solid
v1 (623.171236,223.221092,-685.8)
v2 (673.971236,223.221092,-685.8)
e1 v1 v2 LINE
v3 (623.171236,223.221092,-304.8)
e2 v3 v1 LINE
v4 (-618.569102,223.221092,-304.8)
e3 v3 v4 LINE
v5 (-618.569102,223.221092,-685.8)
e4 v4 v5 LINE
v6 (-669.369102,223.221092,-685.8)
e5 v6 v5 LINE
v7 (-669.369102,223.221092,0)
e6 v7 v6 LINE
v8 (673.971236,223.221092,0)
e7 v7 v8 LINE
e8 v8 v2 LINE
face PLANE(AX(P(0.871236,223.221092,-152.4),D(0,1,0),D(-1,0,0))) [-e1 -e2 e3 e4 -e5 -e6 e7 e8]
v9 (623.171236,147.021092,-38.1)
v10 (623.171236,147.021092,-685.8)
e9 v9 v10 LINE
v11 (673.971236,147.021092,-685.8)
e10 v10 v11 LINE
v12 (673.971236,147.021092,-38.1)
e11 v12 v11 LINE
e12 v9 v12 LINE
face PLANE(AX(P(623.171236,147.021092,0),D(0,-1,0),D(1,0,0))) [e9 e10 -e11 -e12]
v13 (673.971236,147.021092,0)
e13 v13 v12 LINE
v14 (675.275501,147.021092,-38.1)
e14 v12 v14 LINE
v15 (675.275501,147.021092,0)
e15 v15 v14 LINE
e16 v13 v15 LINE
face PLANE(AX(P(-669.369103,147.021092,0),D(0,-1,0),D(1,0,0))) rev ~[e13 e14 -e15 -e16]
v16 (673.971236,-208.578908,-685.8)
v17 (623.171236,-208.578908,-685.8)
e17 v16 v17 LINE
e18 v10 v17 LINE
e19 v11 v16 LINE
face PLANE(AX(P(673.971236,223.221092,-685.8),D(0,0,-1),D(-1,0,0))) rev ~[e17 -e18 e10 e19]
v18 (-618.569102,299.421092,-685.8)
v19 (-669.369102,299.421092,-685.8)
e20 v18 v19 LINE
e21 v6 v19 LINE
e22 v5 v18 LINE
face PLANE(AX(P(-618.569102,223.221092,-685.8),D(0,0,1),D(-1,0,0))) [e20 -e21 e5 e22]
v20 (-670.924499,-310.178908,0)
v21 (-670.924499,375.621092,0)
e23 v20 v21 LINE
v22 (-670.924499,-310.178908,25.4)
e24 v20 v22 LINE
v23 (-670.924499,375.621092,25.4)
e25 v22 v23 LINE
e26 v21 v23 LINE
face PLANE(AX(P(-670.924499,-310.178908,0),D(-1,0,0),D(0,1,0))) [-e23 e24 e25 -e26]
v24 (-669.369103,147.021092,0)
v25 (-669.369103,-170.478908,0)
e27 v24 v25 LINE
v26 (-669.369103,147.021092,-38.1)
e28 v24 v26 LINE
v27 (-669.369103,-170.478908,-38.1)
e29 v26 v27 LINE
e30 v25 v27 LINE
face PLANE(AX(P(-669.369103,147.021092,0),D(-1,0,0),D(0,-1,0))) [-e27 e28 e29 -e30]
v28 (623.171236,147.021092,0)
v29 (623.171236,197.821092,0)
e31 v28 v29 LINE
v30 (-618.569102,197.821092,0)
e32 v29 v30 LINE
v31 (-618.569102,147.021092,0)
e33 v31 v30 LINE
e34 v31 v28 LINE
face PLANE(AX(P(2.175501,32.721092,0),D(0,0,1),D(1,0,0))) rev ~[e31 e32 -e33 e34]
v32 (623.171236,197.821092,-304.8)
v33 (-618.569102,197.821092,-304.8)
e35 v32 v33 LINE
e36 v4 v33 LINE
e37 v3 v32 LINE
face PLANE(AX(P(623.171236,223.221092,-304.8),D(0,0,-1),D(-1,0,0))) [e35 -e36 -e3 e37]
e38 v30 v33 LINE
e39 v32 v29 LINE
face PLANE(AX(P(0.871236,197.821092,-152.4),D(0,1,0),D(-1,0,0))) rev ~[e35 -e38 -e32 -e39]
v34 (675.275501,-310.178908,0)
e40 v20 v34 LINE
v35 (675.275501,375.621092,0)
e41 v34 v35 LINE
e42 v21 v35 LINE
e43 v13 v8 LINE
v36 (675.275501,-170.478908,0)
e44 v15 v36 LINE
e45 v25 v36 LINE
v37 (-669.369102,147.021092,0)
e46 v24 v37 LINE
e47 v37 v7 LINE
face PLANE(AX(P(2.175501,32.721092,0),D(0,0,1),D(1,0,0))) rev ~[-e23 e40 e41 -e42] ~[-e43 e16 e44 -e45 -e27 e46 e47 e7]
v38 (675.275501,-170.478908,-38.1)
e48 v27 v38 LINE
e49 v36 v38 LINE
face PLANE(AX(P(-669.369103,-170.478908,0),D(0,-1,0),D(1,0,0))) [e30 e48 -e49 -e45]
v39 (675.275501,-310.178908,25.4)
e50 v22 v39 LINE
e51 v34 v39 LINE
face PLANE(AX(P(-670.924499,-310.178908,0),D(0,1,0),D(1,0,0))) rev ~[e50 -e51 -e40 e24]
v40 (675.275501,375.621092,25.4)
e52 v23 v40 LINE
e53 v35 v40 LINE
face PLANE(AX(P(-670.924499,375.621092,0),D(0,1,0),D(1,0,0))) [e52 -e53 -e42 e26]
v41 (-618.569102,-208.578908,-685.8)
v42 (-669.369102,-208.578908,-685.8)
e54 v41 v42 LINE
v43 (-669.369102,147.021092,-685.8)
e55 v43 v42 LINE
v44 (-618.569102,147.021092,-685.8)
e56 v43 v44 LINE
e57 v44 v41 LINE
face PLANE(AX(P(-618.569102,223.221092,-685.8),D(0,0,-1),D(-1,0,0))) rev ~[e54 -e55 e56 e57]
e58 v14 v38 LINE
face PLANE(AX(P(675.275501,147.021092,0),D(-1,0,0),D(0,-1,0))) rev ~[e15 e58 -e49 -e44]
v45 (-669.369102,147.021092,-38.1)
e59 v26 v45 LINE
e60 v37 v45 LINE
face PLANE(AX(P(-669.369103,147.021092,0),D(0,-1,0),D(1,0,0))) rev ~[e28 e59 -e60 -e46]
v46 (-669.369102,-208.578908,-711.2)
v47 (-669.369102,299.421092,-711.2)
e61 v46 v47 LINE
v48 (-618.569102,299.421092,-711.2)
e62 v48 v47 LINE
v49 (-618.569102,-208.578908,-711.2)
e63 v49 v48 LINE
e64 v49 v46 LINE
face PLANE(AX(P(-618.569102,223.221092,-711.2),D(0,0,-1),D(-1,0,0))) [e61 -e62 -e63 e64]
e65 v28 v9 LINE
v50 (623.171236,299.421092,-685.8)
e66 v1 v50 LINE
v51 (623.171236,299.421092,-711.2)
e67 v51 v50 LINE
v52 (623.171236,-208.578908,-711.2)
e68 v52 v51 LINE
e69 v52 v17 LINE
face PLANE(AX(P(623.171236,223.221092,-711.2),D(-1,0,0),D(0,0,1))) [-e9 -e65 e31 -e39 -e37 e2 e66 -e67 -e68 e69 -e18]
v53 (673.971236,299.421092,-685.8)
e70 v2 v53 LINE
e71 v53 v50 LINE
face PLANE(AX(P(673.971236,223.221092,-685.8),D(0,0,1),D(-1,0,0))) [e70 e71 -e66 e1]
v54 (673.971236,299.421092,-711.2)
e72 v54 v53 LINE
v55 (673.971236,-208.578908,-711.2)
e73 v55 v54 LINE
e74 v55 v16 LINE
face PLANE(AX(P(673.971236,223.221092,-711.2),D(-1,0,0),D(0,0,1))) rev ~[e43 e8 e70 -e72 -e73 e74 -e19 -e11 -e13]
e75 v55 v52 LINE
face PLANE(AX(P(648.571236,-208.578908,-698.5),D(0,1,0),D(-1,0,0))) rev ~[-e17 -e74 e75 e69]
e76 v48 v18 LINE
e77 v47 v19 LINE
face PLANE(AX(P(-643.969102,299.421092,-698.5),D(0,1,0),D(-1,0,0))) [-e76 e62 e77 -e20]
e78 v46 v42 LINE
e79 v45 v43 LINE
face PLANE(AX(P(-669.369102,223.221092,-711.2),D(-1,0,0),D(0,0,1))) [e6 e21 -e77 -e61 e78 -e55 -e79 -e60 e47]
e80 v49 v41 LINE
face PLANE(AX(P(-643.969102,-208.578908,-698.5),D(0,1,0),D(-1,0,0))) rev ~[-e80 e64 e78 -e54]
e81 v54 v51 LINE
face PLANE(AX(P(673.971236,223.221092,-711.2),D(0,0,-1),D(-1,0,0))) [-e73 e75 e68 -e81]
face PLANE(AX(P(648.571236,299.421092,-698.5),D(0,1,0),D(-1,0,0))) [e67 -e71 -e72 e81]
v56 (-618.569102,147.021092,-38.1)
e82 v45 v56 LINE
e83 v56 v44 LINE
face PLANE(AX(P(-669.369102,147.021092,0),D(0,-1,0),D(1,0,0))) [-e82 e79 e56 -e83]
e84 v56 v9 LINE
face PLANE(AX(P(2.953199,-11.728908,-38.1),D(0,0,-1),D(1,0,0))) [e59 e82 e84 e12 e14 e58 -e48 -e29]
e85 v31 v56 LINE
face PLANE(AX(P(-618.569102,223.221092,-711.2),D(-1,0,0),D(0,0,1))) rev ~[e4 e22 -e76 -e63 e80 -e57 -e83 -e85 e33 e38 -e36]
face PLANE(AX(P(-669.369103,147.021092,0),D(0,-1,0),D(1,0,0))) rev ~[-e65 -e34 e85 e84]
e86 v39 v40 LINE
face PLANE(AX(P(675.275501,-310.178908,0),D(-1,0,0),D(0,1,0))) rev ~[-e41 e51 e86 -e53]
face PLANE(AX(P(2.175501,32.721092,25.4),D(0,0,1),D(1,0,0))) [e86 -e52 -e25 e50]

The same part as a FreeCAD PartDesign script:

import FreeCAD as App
import Part
import Sketcher

V = App.Vector
Q = App.Units.Quantity


def add_polygon(sketch, points):
    """Adds a closed chain of lines whose ends are joined by coincident constraints."""
    first, n = sketch.GeometryCount, len(points)
    for a, b in zip(points, points[1:] + points[:1]):
        sketch.addGeometry(Part.LineSegment(App.Vector(*a, 0), App.Vector(*b, 0)), False)
    for i in range(n):
        sketch.addConstraint(Sketcher.Constraint("Coincident", first + i, 2, first + (i + 1) % n, 1))

doc = App.newDocument("Part")
params = doc.addObject("Spreadsheet::Sheet", "Params")
for row, (alias, value) in enumerate([
    ("sketch1_width", "53 in"),
    ("sketch1_height", "27 in"),
    ("pad1_length", "1 in"),
    ("sketch2_width", "2 in"),
    ("sketch2_height", "3 in"),
    ("pad2_length", "27 in"),
    ("sketch3_height", "12.5 in"),
    ("pad3_length", "1.5 in"),
    ("sketch4_width", "2 in"),
    ("sketch4_height", "1 in"),
    ("pad4_length", "3 in"),
    ("pad4_length2", "17 in"),
    ("sketch5_width", "2 in"),
    ("sketch5_height", "1 in"),
    ("pad5_length", "3 in"),
    ("pad5_length2", "17 in"),
    ("sketch6_width", "49 in"),
    ("sketch6_height", "12 in"),
    ("pad6_length", "1 in"),
], start=1):
    params.set(f"A{row}", alias)
    params.set(f"B{row}", "=" + value)
    params.setAlias(f"B{row}", alias)

body = doc.addObject("PartDesign::Body", "Body")

# Sketch on XY plane
sketch1 = doc.addObject("Sketcher::SketchObject", "Sketch")
body.addObject(sketch1)
sketch1.AttachmentSupport = (doc.XY_Plane, [""])
sketch1.MapMode = "FlatFace"
add_polygon(sketch1, [(-671, 376), (-671, -310), (675, -310), (675, 376)])  # lines 0-3
sketch1.addConstraint([
    Sketcher.Constraint("Vertical", 0),
    Sketcher.Constraint("Horizontal", 1),
    Sketcher.Constraint("Vertical", 2),
    Sketcher.Constraint("Horizontal", 3),
    Sketcher.Constraint("DistanceX", 1, 1, 1, 2, Q("53 in")),
    Sketcher.Constraint("DistanceY", 0, 2, 0, 1, Q("27 in")),
    Sketcher.Constraint("DistanceX", 0, 2, -1, 1, 670.924499),
    Sketcher.Constraint("DistanceY", 0, 2, -1, 1, 310.178908),
])
sketch1.setExpression("Constraints[8]", "Params.sketch1_width")
sketch1.setExpression("Constraints[9]", "Params.sketch1_height")
pad1 = doc.addObject("PartDesign::Pad", "Pad")
body.addObject(pad1)
pad1.Profile = sketch1
pad1.setExpression("Length", "Params.pad1_length")
body2 = doc.addObject("PartDesign::Body", "Body001")
body2.AllowCompound = True

# Sketch on XY plane
sketch2 = doc.addObject("Sketcher::SketchObject", "Sketch001")
body2.addObject(sketch2)
sketch2.AttachmentSupport = (doc.getObject("XY_Plane001"), [""])
sketch2.MapMode = "FlatFace"
add_polygon(sketch2, [(-669, 223), (-669, 147), (-619, 147), (-619, 223)])  # lines 0-3
add_polygon(sketch2, [(623, 223), (623, 147), (674, 147), (674, 223)])  # lines 4-7
sketch2.addConstraint([
    Sketcher.Constraint("Vertical", 0),
    Sketcher.Constraint("Horizontal", 1),
    Sketcher.Constraint("Vertical", 2),
    Sketcher.Constraint("Horizontal", 3),
    Sketcher.Constraint("Vertical", 4),
    Sketcher.Constraint("Horizontal", 5),
    Sketcher.Constraint("Vertical", 6),
    Sketcher.Constraint("Horizontal", 7),
    Sketcher.Constraint("Horizontal", 1, 2, 4, 2),
    Sketcher.Constraint("Horizontal", 3, 2, 6, 2),
    Sketcher.Constraint("Equal", 3, 5),
    Sketcher.Constraint("DistanceX", 1, 1, 1, 2, Q("2 in")),
    Sketcher.Constraint("DistanceY", 0, 2, 0, 1, Q("3 in")),
    Sketcher.Constraint("DistanceX", 0, 2, -1, 1, 669.369102),
    Sketcher.Constraint("DistanceY", -1, 1, 2, 2, 223.221092),
    Sketcher.Constraint("DistanceX", 1, 2, 4, 2, 1241.740338),
])
sketch2.setExpression("Constraints[19]", "Params.sketch2_width")
sketch2.setExpression("Constraints[20]", "Params.sketch2_height")
pad2 = doc.addObject("PartDesign::Pad", "Pad001")
body2.addObject(pad2)
pad2.Profile = sketch2
pad2.setExpression("Length", "Params.pad2_length")
pad2.Reversed = True
doc.recompute()

boolean = doc.addObject("PartDesign::Boolean", "Boolean")
body.addObject(boolean)
boolean.Type = "Fuse"
boolean.addObjects([body2])

# Sketch on XY plane
sketch3 = doc.addObject("Sketcher::SketchObject", "Sketch002")
body.addObject(sketch3)
sketch3.AttachmentSupport = (doc.XY_Plane, [""])
sketch3.MapMode = "FlatFace"
add_polygon(sketch3, [(-669, -170), (-669, 147), (675, 147), (675, -170)])  # lines 0-3
sketch3.addConstraint([
    Sketcher.Constraint("Vertical", 0),
    Sketcher.Constraint("Horizontal", 1),
    Sketcher.Constraint("Vertical", 2),
    Sketcher.Constraint("Horizontal", 3),
    Sketcher.Constraint("DistanceY", 0, 1, 0, 2, Q("12.5 in")),
    Sketcher.Constraint("DistanceX", -1, 1, 1, 2, 675.275501),
    Sketcher.Constraint("DistanceX", 1, 1, 1, 2, 1344.644603),
    Sketcher.Constraint("DistanceY", -1, 1, 0, 2, 147.021092),
])
sketch3.setExpression("Constraints[8]", "Params.sketch3_height")
pad3 = doc.addObject("PartDesign::Pad", "Pad002")
body.addObject(pad3)
pad3.Profile = sketch3
pad3.setExpression("Length", "Params.pad3_length")
pad3.Reversed = True

# Sketch on XZ plane
sketch4 = doc.addObject("Sketcher::SketchObject", "Sketch003")
body.addObject(sketch4)
sketch4.AttachmentSupport = (doc.XZ_Plane, [""])
sketch4.MapMode = "FlatFace"
sketch4.AttachmentOffset = App.Placement(V(0, 0, -223.221092), App.Rotation())
add_polygon(sketch4, [(674, -686), (674, -711), (623, -711), (623, -686)])  # lines 0-3
sketch4.addConstraint([
    Sketcher.Constraint("Vertical", 0),
    Sketcher.Constraint("Horizontal", 1),
    Sketcher.Constraint("Vertical", 2),
    Sketcher.Constraint("Horizontal", 3),
    Sketcher.Constraint("DistanceX", 1, 2, 1, 1, Q("2 in")),
    Sketcher.Constraint("DistanceY", 0, 2, 0, 1, Q("1 in")),
    Sketcher.Constraint("DistanceY", 0, 2, -1, 1, Q("28 in")),
    Sketcher.Constraint("DistanceX", -1, 1, 0, 2, 673.971236),
])
sketch4.setExpression("Constraints[8]", "Params.sketch4_width")
sketch4.setExpression("Constraints[9]", "Params.sketch4_height")
pad4 = doc.addObject("PartDesign::Pad", "Pad003")
body.addObject(pad4)
pad4.Profile = sketch4
pad4.Type = "TwoLengths"
pad4.setExpression("Length", "Params.pad4_length")
pad4.setExpression("Length2", "Params.pad4_length2")
pad4.Reversed = True

# Sketch on XZ plane
sketch5 = doc.addObject("Sketcher::SketchObject", "Sketch004")
body.addObject(sketch5)
sketch5.AttachmentSupport = (doc.XZ_Plane, [""])
sketch5.MapMode = "FlatFace"
sketch5.AttachmentOffset = App.Placement(V(0, 0, -223.221092), App.Rotation())
add_polygon(sketch5, [(-619, -686), (-619, -711), (-669, -711), (-669, -686)])  # lines 0-3
sketch5.addConstraint([
    Sketcher.Constraint("Vertical", 0),
    Sketcher.Constraint("Horizontal", 1),
    Sketcher.Constraint("Vertical", 2),
    Sketcher.Constraint("Horizontal", 3),
    Sketcher.Constraint("DistanceX", 1, 2, 1, 1, Q("2 in")),
    Sketcher.Constraint("DistanceY", 0, 2, 0, 1, Q("1 in")),
    Sketcher.Constraint("DistanceY", 0, 2, -1, 1, Q("28 in")),
    Sketcher.Constraint("DistanceX", 0, 2, -1, 1, 618.569102),
])
sketch5.setExpression("Constraints[8]", "Params.sketch5_width")
sketch5.setExpression("Constraints[9]", "Params.sketch5_height")
pad5 = doc.addObject("PartDesign::Pad", "Pad004")
body.addObject(pad5)
pad5.Profile = sketch5
pad5.Type = "TwoLengths"
pad5.setExpression("Length", "Params.pad5_length")
pad5.setExpression("Length2", "Params.pad5_length2")
pad5.Reversed = True

# Sketch on XZ plane
sketch6 = doc.addObject("Sketcher::SketchObject", "Sketch005")
body.addObject(sketch6)
sketch6.AttachmentSupport = (doc.XZ_Plane, [""])
sketch6.MapMode = "FlatFace"
sketch6.AttachmentOffset = App.Placement(V(0, 0, -223.221092), App.Rotation())
add_polygon(sketch6, [(623, 0), (623, -305), (-621, -305), (-621, 0)])  # lines 0-3
sketch6.addConstraint([
    Sketcher.Constraint("Vertical", 0),
    Sketcher.Constraint("Horizontal", 1),
    Sketcher.Constraint("Vertical", 2),
    Sketcher.Constraint("Horizontal", 3),
    Sketcher.Constraint("PointOnObject", 2, 2, -1),
    Sketcher.Constraint("DistanceX", 1, 2, 1, 1, Q("49 in")),
    Sketcher.Constraint("DistanceY", 0, 2, 0, 1, Q("12 in")),
    Sketcher.Constraint("DistanceX", -1, 1, 0, 2, 623.171236),
])
sketch6.setExpression("Constraints[9]", "Params.sketch6_width")
sketch6.setExpression("Constraints[10]", "Params.sketch6_height")
pad6 = doc.addObject("PartDesign::Pad", "Pad005")
body.addObject(pad6)
pad6.Profile = sketch6
pad6.setExpression("Length", "Params.pad6_length")

doc.recompute()
